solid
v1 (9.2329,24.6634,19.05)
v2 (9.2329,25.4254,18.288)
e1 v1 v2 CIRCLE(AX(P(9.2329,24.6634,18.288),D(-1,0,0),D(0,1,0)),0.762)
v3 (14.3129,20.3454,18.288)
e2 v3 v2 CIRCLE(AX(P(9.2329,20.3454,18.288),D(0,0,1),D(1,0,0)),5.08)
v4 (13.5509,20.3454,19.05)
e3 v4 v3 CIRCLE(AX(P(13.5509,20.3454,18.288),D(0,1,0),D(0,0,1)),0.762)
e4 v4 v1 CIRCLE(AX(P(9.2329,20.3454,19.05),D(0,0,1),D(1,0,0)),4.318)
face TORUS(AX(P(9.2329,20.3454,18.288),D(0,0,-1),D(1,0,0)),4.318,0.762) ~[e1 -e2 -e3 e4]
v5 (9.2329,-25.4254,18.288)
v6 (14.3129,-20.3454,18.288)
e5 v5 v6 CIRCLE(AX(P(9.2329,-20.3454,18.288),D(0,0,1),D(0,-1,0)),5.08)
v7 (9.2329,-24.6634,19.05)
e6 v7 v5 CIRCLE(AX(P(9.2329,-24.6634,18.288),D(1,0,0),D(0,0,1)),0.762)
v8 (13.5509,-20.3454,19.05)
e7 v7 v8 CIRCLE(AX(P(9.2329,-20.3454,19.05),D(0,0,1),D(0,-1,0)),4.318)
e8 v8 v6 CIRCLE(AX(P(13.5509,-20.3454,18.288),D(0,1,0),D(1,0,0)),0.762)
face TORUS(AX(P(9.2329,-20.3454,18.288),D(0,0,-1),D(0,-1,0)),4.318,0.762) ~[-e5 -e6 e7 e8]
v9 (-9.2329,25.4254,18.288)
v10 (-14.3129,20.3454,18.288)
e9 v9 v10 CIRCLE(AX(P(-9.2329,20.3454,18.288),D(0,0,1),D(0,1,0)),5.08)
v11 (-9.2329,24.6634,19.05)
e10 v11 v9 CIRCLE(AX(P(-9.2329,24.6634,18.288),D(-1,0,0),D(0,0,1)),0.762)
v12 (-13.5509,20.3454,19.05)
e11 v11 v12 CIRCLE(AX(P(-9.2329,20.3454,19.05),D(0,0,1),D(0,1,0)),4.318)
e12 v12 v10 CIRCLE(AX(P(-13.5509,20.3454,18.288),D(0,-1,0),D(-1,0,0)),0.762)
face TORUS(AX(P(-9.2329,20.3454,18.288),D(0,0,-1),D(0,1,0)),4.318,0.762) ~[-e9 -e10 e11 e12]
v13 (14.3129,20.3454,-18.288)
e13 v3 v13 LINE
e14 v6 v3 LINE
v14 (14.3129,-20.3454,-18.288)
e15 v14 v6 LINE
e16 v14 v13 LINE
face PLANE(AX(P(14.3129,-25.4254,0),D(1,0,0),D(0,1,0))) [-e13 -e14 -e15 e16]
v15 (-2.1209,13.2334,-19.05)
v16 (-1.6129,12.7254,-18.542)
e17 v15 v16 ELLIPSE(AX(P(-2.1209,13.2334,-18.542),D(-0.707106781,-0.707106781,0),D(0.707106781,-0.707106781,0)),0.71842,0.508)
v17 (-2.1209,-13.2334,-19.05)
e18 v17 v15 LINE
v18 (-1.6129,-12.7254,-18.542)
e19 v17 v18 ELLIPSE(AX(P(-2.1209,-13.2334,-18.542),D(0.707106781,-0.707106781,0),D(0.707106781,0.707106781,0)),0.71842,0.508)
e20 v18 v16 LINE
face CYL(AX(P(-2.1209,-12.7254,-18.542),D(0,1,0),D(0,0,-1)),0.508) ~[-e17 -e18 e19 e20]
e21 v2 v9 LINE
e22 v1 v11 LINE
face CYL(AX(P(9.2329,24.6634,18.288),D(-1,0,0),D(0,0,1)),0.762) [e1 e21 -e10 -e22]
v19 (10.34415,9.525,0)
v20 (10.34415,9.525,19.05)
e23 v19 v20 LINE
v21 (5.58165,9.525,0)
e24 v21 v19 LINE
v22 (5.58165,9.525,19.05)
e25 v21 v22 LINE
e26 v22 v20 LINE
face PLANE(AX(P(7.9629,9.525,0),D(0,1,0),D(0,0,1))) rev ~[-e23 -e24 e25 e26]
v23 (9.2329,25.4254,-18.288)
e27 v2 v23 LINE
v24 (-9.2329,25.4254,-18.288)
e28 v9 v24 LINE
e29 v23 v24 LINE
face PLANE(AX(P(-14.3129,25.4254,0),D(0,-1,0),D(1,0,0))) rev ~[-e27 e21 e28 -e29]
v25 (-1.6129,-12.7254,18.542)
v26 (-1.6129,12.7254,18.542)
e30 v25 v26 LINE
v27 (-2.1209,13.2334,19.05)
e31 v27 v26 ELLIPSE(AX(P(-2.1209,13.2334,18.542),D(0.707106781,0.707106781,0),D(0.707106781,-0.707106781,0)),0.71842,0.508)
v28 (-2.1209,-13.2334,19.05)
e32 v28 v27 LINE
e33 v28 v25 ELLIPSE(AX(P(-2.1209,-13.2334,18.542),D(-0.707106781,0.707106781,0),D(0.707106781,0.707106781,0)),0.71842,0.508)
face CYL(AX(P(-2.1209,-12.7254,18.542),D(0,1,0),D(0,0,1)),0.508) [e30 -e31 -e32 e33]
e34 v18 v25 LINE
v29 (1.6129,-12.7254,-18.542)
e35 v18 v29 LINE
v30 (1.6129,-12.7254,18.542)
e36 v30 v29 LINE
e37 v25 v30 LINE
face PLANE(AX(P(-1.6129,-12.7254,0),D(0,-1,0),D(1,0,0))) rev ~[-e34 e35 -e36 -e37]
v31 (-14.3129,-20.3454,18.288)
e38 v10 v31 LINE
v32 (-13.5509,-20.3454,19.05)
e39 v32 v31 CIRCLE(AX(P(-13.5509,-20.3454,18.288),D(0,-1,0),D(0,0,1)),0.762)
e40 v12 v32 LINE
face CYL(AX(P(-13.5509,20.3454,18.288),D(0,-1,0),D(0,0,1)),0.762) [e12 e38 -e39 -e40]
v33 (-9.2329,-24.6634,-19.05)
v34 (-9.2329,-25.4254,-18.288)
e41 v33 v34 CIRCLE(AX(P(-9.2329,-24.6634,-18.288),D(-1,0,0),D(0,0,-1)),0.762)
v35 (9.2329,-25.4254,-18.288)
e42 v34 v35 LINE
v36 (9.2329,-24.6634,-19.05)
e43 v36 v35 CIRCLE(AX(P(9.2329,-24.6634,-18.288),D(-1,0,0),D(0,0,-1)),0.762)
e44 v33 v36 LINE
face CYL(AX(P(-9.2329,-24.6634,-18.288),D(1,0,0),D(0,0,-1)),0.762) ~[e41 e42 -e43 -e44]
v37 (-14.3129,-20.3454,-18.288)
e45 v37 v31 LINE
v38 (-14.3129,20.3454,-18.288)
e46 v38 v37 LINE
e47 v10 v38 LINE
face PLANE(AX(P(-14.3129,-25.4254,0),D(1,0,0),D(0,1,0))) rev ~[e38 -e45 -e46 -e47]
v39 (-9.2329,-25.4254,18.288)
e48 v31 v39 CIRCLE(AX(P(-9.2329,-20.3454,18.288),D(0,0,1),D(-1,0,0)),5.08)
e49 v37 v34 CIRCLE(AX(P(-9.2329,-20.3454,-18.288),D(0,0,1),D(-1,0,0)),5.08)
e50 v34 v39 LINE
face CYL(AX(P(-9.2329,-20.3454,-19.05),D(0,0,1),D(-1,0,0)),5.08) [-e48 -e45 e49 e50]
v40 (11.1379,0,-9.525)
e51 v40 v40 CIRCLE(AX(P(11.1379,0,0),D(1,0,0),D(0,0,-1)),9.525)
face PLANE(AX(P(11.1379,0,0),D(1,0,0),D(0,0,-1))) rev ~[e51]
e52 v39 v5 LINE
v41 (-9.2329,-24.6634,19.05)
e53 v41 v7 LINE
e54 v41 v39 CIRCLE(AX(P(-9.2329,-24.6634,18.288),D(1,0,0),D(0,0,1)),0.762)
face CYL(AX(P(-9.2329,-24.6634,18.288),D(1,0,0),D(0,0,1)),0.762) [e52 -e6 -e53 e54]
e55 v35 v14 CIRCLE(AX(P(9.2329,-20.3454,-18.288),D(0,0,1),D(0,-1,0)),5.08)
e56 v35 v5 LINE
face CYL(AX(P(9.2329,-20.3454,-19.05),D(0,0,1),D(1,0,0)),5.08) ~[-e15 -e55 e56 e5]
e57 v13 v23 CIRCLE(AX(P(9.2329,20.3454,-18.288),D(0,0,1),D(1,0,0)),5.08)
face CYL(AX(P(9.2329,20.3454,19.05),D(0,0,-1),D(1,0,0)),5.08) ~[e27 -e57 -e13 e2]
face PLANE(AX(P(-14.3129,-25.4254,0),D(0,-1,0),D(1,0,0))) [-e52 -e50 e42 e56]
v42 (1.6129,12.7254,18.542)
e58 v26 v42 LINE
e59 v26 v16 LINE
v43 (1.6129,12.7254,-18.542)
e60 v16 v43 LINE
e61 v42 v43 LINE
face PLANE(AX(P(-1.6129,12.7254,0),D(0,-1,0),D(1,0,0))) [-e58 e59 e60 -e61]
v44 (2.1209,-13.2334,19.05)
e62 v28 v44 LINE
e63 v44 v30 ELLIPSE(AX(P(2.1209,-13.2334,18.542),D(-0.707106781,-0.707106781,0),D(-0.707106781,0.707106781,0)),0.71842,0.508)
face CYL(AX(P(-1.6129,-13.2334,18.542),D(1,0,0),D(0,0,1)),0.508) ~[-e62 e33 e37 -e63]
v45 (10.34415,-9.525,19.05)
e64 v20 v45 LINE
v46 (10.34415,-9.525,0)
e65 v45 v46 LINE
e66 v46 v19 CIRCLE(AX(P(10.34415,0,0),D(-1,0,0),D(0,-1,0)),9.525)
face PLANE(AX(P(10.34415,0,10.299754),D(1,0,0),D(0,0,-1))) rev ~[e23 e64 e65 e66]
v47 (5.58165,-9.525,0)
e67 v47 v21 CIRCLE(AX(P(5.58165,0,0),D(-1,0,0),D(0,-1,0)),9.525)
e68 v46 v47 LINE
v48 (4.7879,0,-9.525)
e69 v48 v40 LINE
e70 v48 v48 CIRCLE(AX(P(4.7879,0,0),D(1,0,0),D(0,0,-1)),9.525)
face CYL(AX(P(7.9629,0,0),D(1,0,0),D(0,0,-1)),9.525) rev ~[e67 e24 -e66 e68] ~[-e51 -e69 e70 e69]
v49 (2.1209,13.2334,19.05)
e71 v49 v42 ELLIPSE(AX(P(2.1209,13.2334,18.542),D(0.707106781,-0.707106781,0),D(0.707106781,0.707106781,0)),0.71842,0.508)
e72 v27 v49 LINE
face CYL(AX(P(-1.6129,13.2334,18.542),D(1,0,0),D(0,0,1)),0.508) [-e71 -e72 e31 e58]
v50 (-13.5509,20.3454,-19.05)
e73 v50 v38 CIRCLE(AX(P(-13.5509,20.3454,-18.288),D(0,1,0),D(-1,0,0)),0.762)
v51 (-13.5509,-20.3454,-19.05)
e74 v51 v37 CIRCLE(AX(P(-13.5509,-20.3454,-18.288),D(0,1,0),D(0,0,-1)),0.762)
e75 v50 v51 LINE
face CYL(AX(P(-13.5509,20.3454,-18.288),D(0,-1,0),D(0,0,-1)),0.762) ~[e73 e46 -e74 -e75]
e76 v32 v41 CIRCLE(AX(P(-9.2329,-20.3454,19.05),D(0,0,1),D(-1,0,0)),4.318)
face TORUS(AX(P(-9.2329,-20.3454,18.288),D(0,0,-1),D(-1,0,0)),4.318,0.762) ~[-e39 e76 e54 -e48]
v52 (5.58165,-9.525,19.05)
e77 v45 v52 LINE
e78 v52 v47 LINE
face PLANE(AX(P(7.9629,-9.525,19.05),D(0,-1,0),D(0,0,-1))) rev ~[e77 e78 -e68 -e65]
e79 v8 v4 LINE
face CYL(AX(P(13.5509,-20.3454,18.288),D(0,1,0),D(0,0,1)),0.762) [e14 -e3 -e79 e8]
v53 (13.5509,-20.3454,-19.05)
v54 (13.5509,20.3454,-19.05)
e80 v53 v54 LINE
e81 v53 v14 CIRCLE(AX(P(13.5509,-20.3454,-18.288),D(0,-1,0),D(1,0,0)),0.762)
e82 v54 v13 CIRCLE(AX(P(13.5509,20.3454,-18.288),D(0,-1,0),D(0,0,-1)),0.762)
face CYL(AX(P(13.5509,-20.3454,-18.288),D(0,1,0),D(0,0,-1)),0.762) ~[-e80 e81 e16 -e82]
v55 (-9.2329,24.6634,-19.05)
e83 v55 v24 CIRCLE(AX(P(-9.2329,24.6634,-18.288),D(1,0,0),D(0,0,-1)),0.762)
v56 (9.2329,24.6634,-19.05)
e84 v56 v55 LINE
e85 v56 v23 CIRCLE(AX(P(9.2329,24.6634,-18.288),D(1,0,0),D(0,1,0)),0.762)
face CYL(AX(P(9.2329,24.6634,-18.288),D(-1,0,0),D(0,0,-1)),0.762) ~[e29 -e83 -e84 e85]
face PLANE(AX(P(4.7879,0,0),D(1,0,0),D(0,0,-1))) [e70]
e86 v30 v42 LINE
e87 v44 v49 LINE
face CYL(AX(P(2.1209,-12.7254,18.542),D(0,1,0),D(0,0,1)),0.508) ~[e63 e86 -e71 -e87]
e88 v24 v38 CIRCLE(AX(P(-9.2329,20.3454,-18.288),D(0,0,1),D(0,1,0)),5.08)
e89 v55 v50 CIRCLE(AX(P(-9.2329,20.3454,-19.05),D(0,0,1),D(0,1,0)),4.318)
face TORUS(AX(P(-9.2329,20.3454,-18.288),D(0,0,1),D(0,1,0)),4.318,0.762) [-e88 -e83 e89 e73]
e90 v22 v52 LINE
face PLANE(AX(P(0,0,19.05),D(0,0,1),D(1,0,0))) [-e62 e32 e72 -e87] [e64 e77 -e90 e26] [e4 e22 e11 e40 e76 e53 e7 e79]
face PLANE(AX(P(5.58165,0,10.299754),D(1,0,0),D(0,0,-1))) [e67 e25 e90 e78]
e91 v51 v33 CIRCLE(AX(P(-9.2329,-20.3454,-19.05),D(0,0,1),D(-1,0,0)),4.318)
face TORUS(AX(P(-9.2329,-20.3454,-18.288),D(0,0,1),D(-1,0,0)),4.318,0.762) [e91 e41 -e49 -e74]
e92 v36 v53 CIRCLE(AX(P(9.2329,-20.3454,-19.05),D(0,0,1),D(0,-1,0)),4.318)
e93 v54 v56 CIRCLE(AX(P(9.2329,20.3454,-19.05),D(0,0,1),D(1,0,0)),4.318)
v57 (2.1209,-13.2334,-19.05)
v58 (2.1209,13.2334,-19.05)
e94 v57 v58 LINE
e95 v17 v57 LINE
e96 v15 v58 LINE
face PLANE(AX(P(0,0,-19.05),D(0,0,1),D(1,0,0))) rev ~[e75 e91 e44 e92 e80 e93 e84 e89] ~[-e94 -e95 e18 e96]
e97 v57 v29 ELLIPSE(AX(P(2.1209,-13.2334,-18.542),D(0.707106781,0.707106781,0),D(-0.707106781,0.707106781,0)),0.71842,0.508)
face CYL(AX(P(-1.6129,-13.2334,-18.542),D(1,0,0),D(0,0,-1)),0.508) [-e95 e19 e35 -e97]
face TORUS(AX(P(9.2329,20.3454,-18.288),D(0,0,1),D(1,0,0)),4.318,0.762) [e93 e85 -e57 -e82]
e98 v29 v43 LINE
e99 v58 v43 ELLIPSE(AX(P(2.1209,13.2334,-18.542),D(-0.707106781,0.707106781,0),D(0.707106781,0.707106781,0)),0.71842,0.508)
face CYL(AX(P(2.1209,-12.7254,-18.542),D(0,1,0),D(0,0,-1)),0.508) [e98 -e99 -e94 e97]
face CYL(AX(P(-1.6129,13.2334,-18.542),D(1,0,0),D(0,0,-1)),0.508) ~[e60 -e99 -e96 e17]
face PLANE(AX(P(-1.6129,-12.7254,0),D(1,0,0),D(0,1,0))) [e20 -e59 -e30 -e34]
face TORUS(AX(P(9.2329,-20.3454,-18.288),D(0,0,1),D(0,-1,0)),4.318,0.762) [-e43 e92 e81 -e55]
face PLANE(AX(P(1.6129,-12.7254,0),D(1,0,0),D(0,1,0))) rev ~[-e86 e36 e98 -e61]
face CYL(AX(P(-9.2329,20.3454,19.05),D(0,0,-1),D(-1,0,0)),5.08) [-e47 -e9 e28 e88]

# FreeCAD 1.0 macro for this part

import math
import FreeCAD as App
import Part
import Sketcher

V = App.Vector
Q = App.Units.Quantity


def edges_at(feature, points):
    """Names of the edges that pass closest to the given points."""
    edges = feature.Shape.Edges
    near = lambda p: min(range(len(edges)), key=lambda i: edges[i].distToShape(Part.Vertex(*p))[0])
    return sorted({f"Edge{near(p) + 1}" for p in points})

doc = App.newDocument("Part")
body = doc.addObject("PartDesign::Body", "Body")

# Sketch on XY plane
sketch1 = doc.addObject("Sketcher::SketchObject", "Sketch")
body.addObject(sketch1)
sketch1.AttachmentSupport = (doc.XY_Plane, [""])
sketch1.MapMode = "FlatFace"
sketch1.addGeometry(Part.LineSegment(V(-14.3129, 25.4254, 0), V(-14.3129, -25.4254, 0)), False)
sketch1.addGeometry(Part.LineSegment(V(-14.3129, -25.4254, 0), V(14.3129, -25.4254, 0)), False)
sketch1.addGeometry(Part.LineSegment(V(14.3129, -25.4254, 0), V(14.3129, 25.4254, 0)), False)
sketch1.addGeometry(Part.LineSegment(V(14.3129, 25.4254, 0), V(-14.3129, 25.4254, 0)), False)
sketch1.addGeometry(Part.LineSegment(V(1.6129, -12.7254, 0), V(-1.6129, -12.7254, 0)), False)
sketch1.addGeometry(Part.LineSegment(V(-1.6129, -12.7254, 0), V(-1.6129, 12.7254, 0)), False)
sketch1.addGeometry(Part.LineSegment(V(-1.6129, 12.7254, 0), V(1.6129, 12.7254, 0)), False)
sketch1.addGeometry(Part.LineSegment(V(1.6129, 12.7254, 0), V(1.6129, -12.7254, 0)), False)
sketch1.addConstraint(Sketcher.Constraint("Coincident", 0, 2, 1, 1))
sketch1.addConstraint(Sketcher.Constraint("Coincident", 1, 2, 2, 1))
sketch1.addConstraint(Sketcher.Constraint("Coincident", 2, 2, 3, 1))
sketch1.addConstraint(Sketcher.Constraint("Coincident", 3, 2, 0, 1))
sketch1.addConstraint(Sketcher.Constraint("Coincident", 4, 2, 5, 1))
sketch1.addConstraint(Sketcher.Constraint("Coincident", 5, 2, 6, 1))
sketch1.addConstraint(Sketcher.Constraint("Coincident", 6, 2, 7, 1))
sketch1.addConstraint(Sketcher.Constraint("Coincident", 7, 2, 4, 1))
sketch1.addConstraint(Sketcher.Constraint("Vertical", 0))
sketch1.addConstraint(Sketcher.Constraint("Horizontal", 1))
sketch1.addConstraint(Sketcher.Constraint("Vertical", 2))
sketch1.addConstraint(Sketcher.Constraint("Horizontal", 3))
sketch1.addConstraint(Sketcher.Constraint("Horizontal", 4))
sketch1.addConstraint(Sketcher.Constraint("Vertical", 5))
sketch1.addConstraint(Sketcher.Constraint("Horizontal", 6))
sketch1.addConstraint(Sketcher.Constraint("Vertical", 7))
sketch1.addConstraint(Sketcher.Constraint("Symmetric", 0, 2, 2, 2, -1, 1))
sketch1.addConstraint(Sketcher.Constraint("Symmetric", 4, 2, 6, 2, -1, 1))
sketch1.addConstraint(Sketcher.Constraint("DistanceX", 0, 2, 4, 2, Q("0.5 in")))
sketch1.addConstraint(Sketcher.Constraint("DistanceY", 0, 2, 4, 2, Q("0.5 in")))
sketch1.addConstraint(Sketcher.Constraint("DistanceX", 1, 1, 1, 2, Q("1.127 in")))
sketch1.addConstraint(Sketcher.Constraint("DistanceY", 0, 2, 0, 1, Q("2.002 in")))
pad1 = doc.addObject("PartDesign::Pad", "Pad")
body.addObject(pad1)
pad1.Profile = sketch1
pad1.Length = Q("1.5 in")
pad1.Midplane = True
doc.recompute()

fillet = doc.addObject("PartDesign::Fillet", "Fillet")
body.addObject(fillet)
fillet.Base = (pad1, edges_at(pad1, [
    (-14.313, -25.425, 0),
    (-14.313, 25.425, 0),
    (14.313, 25.425, 0),
    (14.313, -25.425, 0),
]))
fillet.Radius = Q("0.2 in")
doc.recompute()

fillet2 = doc.addObject("PartDesign::Fillet", "Fillet001")
body.addObject(fillet2)
fillet2.Base = (fillet, edges_at(fillet, [
    (0, -25.425, -19.05),
    (0, -25.425, 19.05),
    (-14.313, 0, -19.05),
    (0, 25.425, -19.05),
    (14.313, 0, -19.05),
    (12.825, 23.938, -19.05),
    (-12.825, 23.938, -19.05),
    (12.825, -23.938, -19.05),
    (-12.825, -23.938, -19.05),
    (-14.313, 0, 19.05),
    (14.313, 0, 19.05),
    (0, 25.425, 19.05),
    (12.825, 23.938, 19.05),
    (-12.825, 23.938, 19.05),
    (12.825, -23.938, 19.05),
    (-12.825, -23.938, 19.05),
]))
fillet2.Radius = Q("0.03 in")
doc.recompute()

fillet3 = doc.addObject("PartDesign::Fillet", "Fillet002")
body.addObject(fillet3)
fillet3.Base = (fillet2, edges_at(fillet2, [
    (1.613, 0, -19.05),
    (0, 12.725, -19.05),
    (-1.613, 0, -19.05),
    (0, -12.725, -19.05),
    (1.613, 0, 19.05),
    (0, 12.725, 19.05),
    (-1.613, 0, 19.05),
    (0, -12.725, 19.05),
]))
fillet3.Radius = Q("0.02 in")

# Sketch on YZ plane
sketch2 = doc.addObject("Sketcher::SketchObject", "Sketch001")
body.addObject(sketch2)
sketch2.AttachmentSupport = (doc.YZ_Plane, [""])
sketch2.MapMode = "FlatFace"
sketch2.AttachmentOffset = App.Placement(V(0, 0, 0.3135 * 25.4), App.Rotation())
sketch2.addGeometry(Part.Circle(V(0, 0, 0), V(0, 0, 1), 9.525), False)
sketch2.addConstraint(Sketcher.Constraint("Coincident", 0, 3, -1, 1))
sketch2.addConstraint(Sketcher.Constraint("Diameter", 0, Q("0.75 in")))
pocket1 = doc.addObject("PartDesign::Pocket", "Pocket")
body.addObject(pocket1)
pocket1.Profile = sketch2
pocket1.Length = Q("0.25 in")
pocket1.Midplane = True

# Sketch on YZ plane
sketch3 = doc.addObject("Sketcher::SketchObject", "Sketch002")
body.addObject(sketch3)
sketch3.AttachmentSupport = (doc.YZ_Plane, [""])
sketch3.MapMode = "FlatFace"
sketch3.AttachmentOffset = App.Placement(V(0, 0, 0.3135 * 25.4), App.Rotation())
sketch3.addGeometry(Part.ArcOfCircle(Part.Circle(V(0, 0, 0), V(0, 0, 1), 9.525), math.radians(0), math.radians(180)), False)
sketch3.addGeometry(Part.LineSegment(V(9.525, 0, 0), V(9.525, 19.05, 0)), False)
sketch3.addGeometry(Part.LineSegment(V(9.525, 19.05, 0), V(-9.525, 19.05, 0)), False)
sketch3.addGeometry(Part.LineSegment(V(-9.525, 19.05, 0), V(-9.525, 0, 0)), False)
sketch3.addConstraint(Sketcher.Constraint("Tangent", 0, 1, 1, 1))
sketch3.addConstraint(Sketcher.Constraint("Coincident", 1, 2, 2, 1))
sketch3.addConstraint(Sketcher.Constraint("Coincident", 2, 2, 3, 1))
sketch3.addConstraint(Sketcher.Constraint("Tangent", 3, 2, 0, 2))
sketch3.addConstraint(Sketcher.Constraint("Vertical", 1))
sketch3.addConstraint(Sketcher.Constraint("Horizontal", 2))
sketch3.addConstraint(Sketcher.Constraint("Vertical", 3))
sketch3.addConstraint(Sketcher.Constraint("Coincident", 0, 3, -1, 1))
sketch3.addConstraint(Sketcher.Constraint("Equal", 2, 1))
sketch3.addConstraint(Sketcher.Constraint("Radius", 0, Q("0.375 in")))
pocket2 = doc.addObject("PartDesign::Pocket", "Pocket001")
body.addObject(pocket2)
pocket2.Profile = sketch3
pocket2.Length = Q("0.1875 in")
pocket2.Midplane = True

doc.recompute()
